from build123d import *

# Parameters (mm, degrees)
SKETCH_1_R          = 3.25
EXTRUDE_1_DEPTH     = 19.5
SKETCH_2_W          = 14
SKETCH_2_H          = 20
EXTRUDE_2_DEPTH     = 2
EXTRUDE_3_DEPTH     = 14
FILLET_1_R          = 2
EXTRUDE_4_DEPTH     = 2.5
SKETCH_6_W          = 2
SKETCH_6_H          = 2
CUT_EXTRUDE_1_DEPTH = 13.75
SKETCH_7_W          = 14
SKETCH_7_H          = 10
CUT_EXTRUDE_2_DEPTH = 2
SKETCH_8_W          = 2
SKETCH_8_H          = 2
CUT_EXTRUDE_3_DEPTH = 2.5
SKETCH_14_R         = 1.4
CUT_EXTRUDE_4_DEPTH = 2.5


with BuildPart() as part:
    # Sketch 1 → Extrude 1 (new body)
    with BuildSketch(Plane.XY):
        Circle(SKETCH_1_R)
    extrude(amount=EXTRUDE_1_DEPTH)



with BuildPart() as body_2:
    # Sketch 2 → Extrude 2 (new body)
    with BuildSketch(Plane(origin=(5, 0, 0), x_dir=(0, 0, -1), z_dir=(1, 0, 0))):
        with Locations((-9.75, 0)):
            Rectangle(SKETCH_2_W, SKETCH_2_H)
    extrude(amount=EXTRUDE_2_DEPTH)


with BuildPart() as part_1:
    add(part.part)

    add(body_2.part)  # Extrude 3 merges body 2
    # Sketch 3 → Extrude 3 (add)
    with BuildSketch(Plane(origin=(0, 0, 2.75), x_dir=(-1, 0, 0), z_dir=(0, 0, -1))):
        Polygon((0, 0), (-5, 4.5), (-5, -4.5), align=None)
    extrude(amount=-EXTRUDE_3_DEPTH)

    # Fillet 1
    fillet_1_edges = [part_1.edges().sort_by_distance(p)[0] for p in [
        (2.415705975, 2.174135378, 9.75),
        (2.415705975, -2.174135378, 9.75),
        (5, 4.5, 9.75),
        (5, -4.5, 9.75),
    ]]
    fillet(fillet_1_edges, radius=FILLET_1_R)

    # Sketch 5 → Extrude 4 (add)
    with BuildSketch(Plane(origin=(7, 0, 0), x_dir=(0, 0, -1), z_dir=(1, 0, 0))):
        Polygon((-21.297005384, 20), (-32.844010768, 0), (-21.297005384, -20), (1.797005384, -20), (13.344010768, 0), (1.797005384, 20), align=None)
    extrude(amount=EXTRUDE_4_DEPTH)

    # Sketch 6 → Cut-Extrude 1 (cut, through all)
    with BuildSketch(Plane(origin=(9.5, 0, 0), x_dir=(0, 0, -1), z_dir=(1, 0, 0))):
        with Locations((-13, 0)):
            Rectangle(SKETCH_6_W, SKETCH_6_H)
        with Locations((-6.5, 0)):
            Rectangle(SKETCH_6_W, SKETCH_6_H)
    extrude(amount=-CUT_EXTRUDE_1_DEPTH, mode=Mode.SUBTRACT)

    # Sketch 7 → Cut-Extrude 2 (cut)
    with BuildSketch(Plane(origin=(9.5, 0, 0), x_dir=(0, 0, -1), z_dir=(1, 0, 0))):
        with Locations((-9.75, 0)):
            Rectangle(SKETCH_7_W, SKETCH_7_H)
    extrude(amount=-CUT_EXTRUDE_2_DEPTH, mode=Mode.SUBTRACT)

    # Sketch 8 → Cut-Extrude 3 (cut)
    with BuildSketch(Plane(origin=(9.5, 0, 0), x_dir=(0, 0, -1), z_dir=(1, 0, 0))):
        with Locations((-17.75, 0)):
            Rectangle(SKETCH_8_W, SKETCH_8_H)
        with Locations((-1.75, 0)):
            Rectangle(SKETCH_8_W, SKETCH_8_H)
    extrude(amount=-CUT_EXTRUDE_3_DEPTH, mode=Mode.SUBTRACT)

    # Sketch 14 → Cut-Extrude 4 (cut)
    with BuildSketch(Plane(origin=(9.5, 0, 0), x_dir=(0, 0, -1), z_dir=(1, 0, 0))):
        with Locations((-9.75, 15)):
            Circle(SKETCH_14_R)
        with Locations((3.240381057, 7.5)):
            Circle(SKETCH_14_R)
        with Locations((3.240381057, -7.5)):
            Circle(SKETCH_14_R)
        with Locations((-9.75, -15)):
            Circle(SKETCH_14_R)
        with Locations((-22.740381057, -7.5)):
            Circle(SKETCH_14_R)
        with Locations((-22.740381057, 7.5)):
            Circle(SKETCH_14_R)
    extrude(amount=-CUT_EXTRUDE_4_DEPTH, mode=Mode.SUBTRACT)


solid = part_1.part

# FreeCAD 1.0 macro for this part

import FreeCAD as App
import Part
import Sketcher
Q = App.Units.Quantity


def edges_at(feature, points):
    """Names of the edges that pass closest to the given points."""
    edges = feature.Shape.Edges
    near = lambda p: min(range(len(edges)), key=lambda i: edges[i].distToShape(Part.Vertex(*p))[0])
    return sorted({f"Edge{near(p) + 1}" for p in points})


def add_polygon(sketch, points):
    """Adds a closed chain of lines whose ends are joined by coincident constraints."""
    first, n = sketch.GeometryCount, len(points)
    for a, b in zip(points, points[1:] + points[:1]):
        sketch.addGeometry(Part.LineSegment(App.Vector(*a, 0), App.Vector(*b, 0)), False)
    for i in range(n):
        sketch.addConstraint(Sketcher.Constraint("Coincident", first + i, 2, first + (i + 1) % n, 1))

doc = App.newDocument("Part")
body = doc.addObject("PartDesign::Body", "Body")

# Sketch on XY plane
sketch1 = body.newObject("Sketcher::SketchObject", "Sketch")
sketch1.AttachmentSupport = (doc.getObject("XY_Plane"), [""])
sketch1.MapMode = "FlatFace"
sketch1.addGeometry(Part.Circle(App.Vector(0, 0, 0), App.Vector(0, 0, 1), 3.2), False)
sketch1.addConstraint([
    Sketcher.Constraint("Coincident", 0, 3, -1, 1),
    Sketcher.Constraint("Diameter", 0, Q("6.5 mm")),
])
pad1 = body.newObject("PartDesign::Pad", "Pad")
pad1.Profile = sketch1
pad1.Length = 19.5
body2 = doc.addObject("PartDesign::Body", "Body001")

# Sketch on YZ plane
sketch2 = body2.newObject("Sketcher::SketchObject", "Sketch001")
sketch2.AttachmentSupport = (doc.getObject("YZ_Plane001"), [""])
sketch2.MapMode = "FlatFace"
sketch2.AttachmentOffset = App.Placement(App.Vector(0, 0, 5), App.Rotation())
add_polygon(sketch2, [(10, 17), (-10, 17), (-10, 3), (10, 3)])  # lines 0-3
sketch2.addConstraint([
    Sketcher.Constraint("Horizontal", 0),
    Sketcher.Constraint("Vertical", 1),
    Sketcher.Constraint("Horizontal", 2),
    Sketcher.Constraint("Vertical", 3),
    Sketcher.Constraint("DistanceX", 0, 2, 0, 1, Q("20 mm")),
    Sketcher.Constraint("DistanceY", 1, 2, 1, 1, Q("14 mm")),
    Sketcher.Constraint("DistanceX", 0, 2, -1, 1, Q("10 mm")),
    Sketcher.Constraint("DistanceY", -1, 1, 0, 2, Q("16.75 mm")),
])
pad2 = body2.newObject("PartDesign::Pad", "Pad001")
pad2.Profile = sketch2
pad2.Length = 2
body.AllowCompound = True
doc.recompute()

boolean = body.newObject("PartDesign::Boolean", "Boolean")
boolean.Type = "Fuse"
boolean.addObjects([body2])

# Sketch on XY plane
sketch3 = body.newObject("Sketcher::SketchObject", "Sketch002")
sketch3.AttachmentSupport = (doc.getObject("XY_Plane"), [""])
sketch3.MapMode = "FlatFace"
sketch3.AttachmentOffset = App.Placement(App.Vector(0, 0, 2.75), App.Rotation())
add_polygon(sketch3, [(0, 0), (5, 4), (5, -4)])  # lines 0-2
sketch3.addConstraint([
    Sketcher.Constraint("Vertical", 1),
    Sketcher.Constraint("Coincident", 2, 2, -1, 1),
    Sketcher.Constraint("Equal", 0, 2),
    Sketcher.Constraint("DistanceY", 1, 2, 1, 1, Q("9 mm")),
    Sketcher.Constraint("DistanceX", -1, 1, 0, 2, Q("5 mm")),
])
pad3 = body.newObject("PartDesign::Pad", "Pad002")
pad3.Profile = sketch3
pad3.Length = 14
doc.recompute()

fillet = body.newObject("PartDesign::Fillet", "Fillet")
fillet.Base = (pad3, edges_at(pad3, [
    (2.416, 2.174, 9.75),
    (2.416, -2.174, 9.75),
    (5, 4.5, 9.75),
    (5, -4.5, 9.75),
]))
fillet.Radius = 2

# Sketch on YZ plane
sketch4 = body.newObject("Sketcher::SketchObject", "Sketch003")
sketch4.AttachmentSupport = (doc.getObject("YZ_Plane"), [""])
sketch4.MapMode = "FlatFace"
sketch4.AttachmentOffset = App.Placement(App.Vector(0, 0, 7), App.Rotation())
add_polygon(sketch4, [(20, 21), (0, 33), (-20, 21), (-20, -2), (0, -13), (20, -2)])  # lines 0-5
sketch4.addConstraint([
    Sketcher.Constraint("Vertical", 2),
    Sketcher.Constraint("Vertical", 5),
    Sketcher.Constraint("Symmetric", 2, 2, 4, 2, -2),
    Sketcher.Constraint("PointOnObject", 0, 2, -2),
    Sketcher.Constraint("PointOnObject", 3, 2, -2),
    Sketcher.Constraint("Parallel", 0, 3),
    Sketcher.Constraint("Parallel", 1, 4),
    Sketcher.Constraint("Angle", 0, Q("150 deg")),
    Sketcher.Constraint("DistanceX", 1, 2, -1, 1, Q("20 mm")),
    Sketcher.Constraint("DistanceY", 2, 2, 2, 1, Q("23.094011 mm")),
    Sketcher.Constraint("DistanceY", -1, 1, 0, 2, Q("32.844011 mm")),
])
pad4 = body.newObject("PartDesign::Pad", "Pad003")
pad4.Profile = sketch4
pad4.Length = 2.5

# Sketch on YZ plane
sketch5 = body.newObject("Sketcher::SketchObject", "Sketch004")
sketch5.AttachmentSupport = (doc.getObject("YZ_Plane"), [""])
sketch5.MapMode = "FlatFace"
sketch5.AttachmentOffset = App.Placement(App.Vector(0, 0, 9.5), App.Rotation())
add_polygon(sketch5, [(1, 14), (-1, 14), (-1, 12), (1, 12)])  # lines 0-3
add_polygon(sketch5, [(1, 7.5), (-1, 7.5), (-1, 5.5), (1, 5.5)])  # lines 4-7
sketch5.addConstraint([
    Sketcher.Constraint("Horizontal", 0),
    Sketcher.Constraint("Vertical", 1),
    Sketcher.Constraint("Horizontal", 2),
    Sketcher.Constraint("Vertical", 3),
    Sketcher.Constraint("Horizontal", 4),
    Sketcher.Constraint("Vertical", 5),
    Sketcher.Constraint("Horizontal", 6),
    Sketcher.Constraint("Vertical", 7),
    Sketcher.Constraint("Vertical", 1, 2, 4, 2),
    Sketcher.Constraint("Vertical", 3, 2, 6, 2),
    Sketcher.Constraint("Equal", 6, 1),
    Sketcher.Constraint("Equal", 3, 5),
    Sketcher.Constraint("DistanceX", 0, 2, 0, 1, Q("2 mm")),
    Sketcher.Constraint("DistanceX", 0, 2, -1, 1, Q("1 mm")),
    Sketcher.Constraint("DistanceY", -1, 1, 0, 2, Q("14 mm")),
    Sketcher.Constraint("DistanceY", -1, 1, 4, 2, Q("7.5 mm")),
])
pocket1 = body.newObject("PartDesign::Pocket", "Pocket")
pocket1.Profile = sketch5
pocket1.Type = "ThroughAll"

# Sketch on YZ plane
sketch6 = body.newObject("Sketcher::SketchObject", "Sketch005")
sketch6.AttachmentSupport = (doc.getObject("YZ_Plane"), [""])
sketch6.MapMode = "FlatFace"
sketch6.AttachmentOffset = App.Placement(App.Vector(0, 0, 9.5), App.Rotation())
add_polygon(sketch6, [(5, 17), (-5, 17), (-5, 3), (5, 3)])  # lines 0-3
sketch6.addConstraint([
    Sketcher.Constraint("Horizontal", 0),
    Sketcher.Constraint("Vertical", 1),
    Sketcher.Constraint("Horizontal", 2),
    Sketcher.Constraint("Vertical", 3),
    Sketcher.Constraint("DistanceX", 0, 2, 0, 1, Q("10 mm")),
    Sketcher.Constraint("DistanceY", 1, 2, 1, 1, Q("14 mm")),
    Sketcher.Constraint("DistanceX", 0, 2, -1, 1, Q("5 mm")),
    Sketcher.Constraint("DistanceY", -1, 1, 0, 2, Q("16.75 mm")),
])
pocket2 = body.newObject("PartDesign::Pocket", "Pocket001")
pocket2.Profile = sketch6
pocket2.Length = 2

# Sketch on YZ plane
sketch7 = body.newObject("Sketcher::SketchObject", "Sketch006")
sketch7.AttachmentSupport = (doc.getObject("YZ_Plane"), [""])
sketch7.MapMode = "FlatFace"
sketch7.AttachmentOffset = App.Placement(App.Vector(0, 0, 9.5), App.Rotation())
add_polygon(sketch7, [(1, 18.8), (-1, 18.8), (-1, 16.8), (1, 16.8)])  # lines 0-3
add_polygon(sketch7, [(1, 2.8), (-1, 2.8), (-1, 0.8), (1, 0.8)])  # lines 4-7
sketch7.addConstraint([
    Sketcher.Constraint("Horizontal", 0),
    Sketcher.Constraint("Vertical", 1),
    Sketcher.Constraint("Horizontal", 2),
    Sketcher.Constraint("Vertical", 3),
    Sketcher.Constraint("Horizontal", 4),
    Sketcher.Constraint("Vertical", 5),
    Sketcher.Constraint("Horizontal", 6),
    Sketcher.Constraint("Vertical", 7),
    Sketcher.Constraint("Vertical", 1, 2, 4, 2),
    Sketcher.Constraint("Vertical", 3, 2, 6, 2),
    Sketcher.Constraint("Equal", 6, 1),
    Sketcher.Constraint("Equal", 3, 5),
    Sketcher.Constraint("DistanceX", 0, 2, 0, 1, Q("2 mm")),
    Sketcher.Constraint("DistanceX", 0, 2, -1, 1, Q("1 mm")),
    Sketcher.Constraint("DistanceY", 4, 2, 1, 2, Q("14 mm")),
    Sketcher.Constraint("DistanceY", -1, 1, 0, 2, Q("18.75 mm")),
])
pocket3 = body.newObject("PartDesign::Pocket", "Pocket002")
pocket3.Profile = sketch7
pocket3.Length = 2.5

# Sketch on YZ plane
sketch8 = body.newObject("Sketcher::SketchObject", "Sketch007")
sketch8.AttachmentSupport = (doc.getObject("YZ_Plane"), [""])
sketch8.MapMode = "FlatFace"
sketch8.AttachmentOffset = App.Placement(App.Vector(0, 0, 9.5), App.Rotation())
sketch8.addGeometry([
    Part.Circle(App.Vector(15, 9.8, 0), App.Vector(0, 0, 1), 1.4),  # 0
    Part.Circle(App.Vector(7.5, -3.2, 0), App.Vector(0, 0, 1), 1.4),  # 1
    Part.Circle(App.Vector(-7.5, -3.2, 0), App.Vector(0, 0, 1), 1.4),  # 2
    Part.Circle(App.Vector(-15, 9.8, 0), App.Vector(0, 0, 1), 1.4),  # 3
    Part.Circle(App.Vector(-7.5, 22.7, 0), App.Vector(0, 0, 1), 1.4),  # 4
    Part.Circle(App.Vector(7.5, 22.7, 0), App.Vector(0, 0, 1), 1.4),  # 5
], False)
sketch8.addConstraint([
    Sketcher.Constraint("Equal", 0, 1),
    Sketcher.Constraint("Equal", 1, 2),
    Sketcher.Constraint("Equal", 2, 3),
    Sketcher.Constraint("Equal", 3, 4),
    Sketcher.Constraint("Equal", 4, 5),
    Sketcher.Constraint("Symmetric", 1, 3, 2, 3, -2),
    Sketcher.Constraint("Symmetric", 0, 3, 3, 3, -2),
    Sketcher.Constraint("Symmetric", 4, 3, 5, 3, -2),
    Sketcher.Constraint("Vertical", 2, 3, 4, 3),
    Sketcher.Constraint("Diameter", 0, Q("2.8 mm")),
    Sketcher.Constraint("DistanceX", -1, 1, 0, 3, Q("15 mm")),
    Sketcher.Constraint("DistanceX", 2, 3, 1, 3, Q("15 mm")),
    Sketcher.Constraint("DistanceY", -1, 1, 0, 3, Q("9.75 mm")),
    Sketcher.Constraint("DistanceY", 1, 3, -1, 1, Q("3.240381 mm")),
    Sketcher.Constraint("DistanceY", -1, 1, 4, 3, Q("22.740381 mm")),
])
pocket4 = body.newObject("PartDesign::Pocket", "Pocket003")
pocket4.Profile = sketch8
pocket4.Length = 2.5

doc.recompute()
